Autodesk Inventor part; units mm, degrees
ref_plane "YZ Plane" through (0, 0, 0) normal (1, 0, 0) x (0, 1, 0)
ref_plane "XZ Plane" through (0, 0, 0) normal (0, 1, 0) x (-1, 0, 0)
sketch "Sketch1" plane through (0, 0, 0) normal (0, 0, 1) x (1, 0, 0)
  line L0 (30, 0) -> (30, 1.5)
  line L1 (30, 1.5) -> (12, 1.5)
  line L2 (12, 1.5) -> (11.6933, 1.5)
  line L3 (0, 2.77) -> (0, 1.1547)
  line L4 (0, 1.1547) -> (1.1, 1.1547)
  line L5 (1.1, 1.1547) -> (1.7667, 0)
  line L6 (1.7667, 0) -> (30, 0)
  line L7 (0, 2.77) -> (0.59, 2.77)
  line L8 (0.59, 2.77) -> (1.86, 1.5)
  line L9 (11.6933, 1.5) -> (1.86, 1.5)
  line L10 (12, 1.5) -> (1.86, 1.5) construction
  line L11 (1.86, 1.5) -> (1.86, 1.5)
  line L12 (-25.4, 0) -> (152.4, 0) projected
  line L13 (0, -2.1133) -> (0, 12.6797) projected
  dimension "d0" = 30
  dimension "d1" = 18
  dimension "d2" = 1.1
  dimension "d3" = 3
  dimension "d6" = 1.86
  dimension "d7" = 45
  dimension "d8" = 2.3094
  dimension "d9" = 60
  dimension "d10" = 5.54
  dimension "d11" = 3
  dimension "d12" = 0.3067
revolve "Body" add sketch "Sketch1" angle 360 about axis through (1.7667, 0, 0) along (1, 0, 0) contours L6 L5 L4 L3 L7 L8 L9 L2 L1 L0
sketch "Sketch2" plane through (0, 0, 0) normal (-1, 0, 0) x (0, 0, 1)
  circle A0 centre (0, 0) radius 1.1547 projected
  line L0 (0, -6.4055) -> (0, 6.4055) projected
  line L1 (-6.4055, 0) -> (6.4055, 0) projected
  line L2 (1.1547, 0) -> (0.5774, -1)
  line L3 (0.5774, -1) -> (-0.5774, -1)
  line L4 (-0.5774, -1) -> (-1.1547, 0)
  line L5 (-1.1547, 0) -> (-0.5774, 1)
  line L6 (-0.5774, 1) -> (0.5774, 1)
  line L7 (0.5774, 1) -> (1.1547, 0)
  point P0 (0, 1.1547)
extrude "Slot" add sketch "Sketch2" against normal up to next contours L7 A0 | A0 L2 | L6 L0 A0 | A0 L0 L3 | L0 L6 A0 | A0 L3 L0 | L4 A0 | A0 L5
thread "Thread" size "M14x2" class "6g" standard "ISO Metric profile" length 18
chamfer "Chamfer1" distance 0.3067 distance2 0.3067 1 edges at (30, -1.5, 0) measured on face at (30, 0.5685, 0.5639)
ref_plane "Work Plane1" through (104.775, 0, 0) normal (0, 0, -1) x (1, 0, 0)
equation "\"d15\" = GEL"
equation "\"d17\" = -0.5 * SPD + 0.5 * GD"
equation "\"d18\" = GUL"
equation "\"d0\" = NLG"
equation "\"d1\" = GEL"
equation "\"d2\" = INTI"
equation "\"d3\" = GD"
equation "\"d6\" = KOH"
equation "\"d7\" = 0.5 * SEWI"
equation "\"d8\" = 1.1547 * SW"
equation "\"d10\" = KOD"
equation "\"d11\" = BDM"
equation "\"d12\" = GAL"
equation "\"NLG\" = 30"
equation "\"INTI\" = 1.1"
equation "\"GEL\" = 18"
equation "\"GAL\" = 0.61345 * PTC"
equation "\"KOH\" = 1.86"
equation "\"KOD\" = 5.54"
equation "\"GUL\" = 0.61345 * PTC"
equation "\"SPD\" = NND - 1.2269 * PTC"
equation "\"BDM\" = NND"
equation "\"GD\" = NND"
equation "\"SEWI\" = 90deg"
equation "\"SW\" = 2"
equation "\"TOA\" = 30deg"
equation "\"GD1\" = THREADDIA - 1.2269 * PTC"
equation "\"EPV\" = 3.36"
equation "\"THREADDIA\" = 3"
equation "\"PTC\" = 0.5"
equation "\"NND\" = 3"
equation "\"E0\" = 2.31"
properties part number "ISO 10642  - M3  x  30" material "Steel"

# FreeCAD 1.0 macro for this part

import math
import FreeCAD as App
import Part
import Sketcher

V = App.Vector
Q = App.Units.Quantity


def edges_at(feature, points):
    """Names of the edges that pass closest to the given points."""
    edges = feature.Shape.Edges
    near = lambda p: min(range(len(edges)), key=lambda i: edges[i].distToShape(Part.Vertex(*p))[0])
    return sorted({f"Edge{near(p) + 1}" for p in points})

doc = App.newDocument("Part")
body = doc.addObject("PartDesign::Body", "Body")

# Sketch on XY plane
sketch1 = body.newObject("Sketcher::SketchObject", "Sketch")
sketch1.AttachmentSupport = (doc.getObject("XY_Plane"), [""])
sketch1.MapMode = "FlatFace"
sketch1.addGeometry([
    Part.LineSegment(V(1.7667, 0, 0), V(30, 0, 0)),  # 0
    Part.LineSegment(V(30, 0, 0), V(30, 1.5, 0)),  # 1
    Part.LineSegment(V(30, 1.5, 0), V(1.86, 1.5, 0)),  # 2
    Part.LineSegment(V(1.86, 1.5, 0), V(0.59, 2.77, 0)),  # 3
    Part.LineSegment(V(0.59, 2.77, 0), V(0, 2.77, 0)),  # 4
    Part.LineSegment(V(0, 2.77, 0), V(0, 1.1547, 0)),  # 5
    Part.LineSegment(V(0, 1.1547, 0), V(1.1, 1.1547, 0)),  # 6
    Part.LineSegment(V(1.1, 1.1547, 0), V(1.7667, 0, 0)),  # 7
], False)
sketch1.addConstraint([
    Sketcher.Constraint("Coincident", 0, 2, 1, 1),
    Sketcher.Constraint("Coincident", 1, 2, 2, 1),
    Sketcher.Constraint("Coincident", 2, 2, 3, 1),
    Sketcher.Constraint("Coincident", 3, 2, 4, 1),
    Sketcher.Constraint("Coincident", 4, 2, 5, 1),
    Sketcher.Constraint("Coincident", 5, 2, 6, 1),
    Sketcher.Constraint("Coincident", 6, 2, 7, 1),
    Sketcher.Constraint("Coincident", 7, 2, 0, 1),
    Sketcher.Constraint("Horizontal", 0),
    Sketcher.Constraint("Vertical", 1),
    Sketcher.Constraint("Horizontal", 2),
    Sketcher.Constraint("Horizontal", 4),
    Sketcher.Constraint("Vertical", 5),
    Sketcher.Constraint("Horizontal", 6),
    Sketcher.Constraint("PointOnObject", 0, 2, -1),
    Sketcher.Constraint("PointOnObject", 4, 2, -2),
    Sketcher.Constraint("DistanceX", 6, 1, 6, 2, 1.1),
    Sketcher.Constraint("DistanceX", -1, 1, 0, 2, 30.0),
    Sketcher.Constraint("DistanceX", -1, 1, 2, 2, 1.86),
    Sketcher.Constraint("Angle", 3, Q("135 deg")),
    Sketcher.Constraint("DistanceY", 1, 1, 1, 2, 1.5),
    Sketcher.Constraint("DistanceX", 4, 2, 4, 1, 0.59),
    Sketcher.Constraint("DistanceX", 0, 1, 0, 2, 28.2333),
    Sketcher.Constraint("DistanceY", 5, 2, 5, 1, 1.6153),
])
revolution = body.newObject("PartDesign::Revolution", "Revolution")
revolution.Profile = sketch1
revolution.ReferenceAxis = (sketch1, ["H_Axis"])
revolution.Angle = 360

# Sketch on YZ plane
sketch2 = body.newObject("Sketcher::SketchObject", "Sketch001")
sketch2.AttachmentSupport = (doc.getObject("YZ_Plane"), [""])
sketch2.MapMode = "FlatFace"
sketch2.addGeometry([
    Part.LineSegment(V(1, 0.5774, 0), V(0, 1.1547, 0)),  # 0
    Part.ArcOfCircle(Part.Circle(V(0, 0, 0), V(0, 0, 1), 1.1547), math.radians(30.002137), math.radians(90)),  # 1
    Part.ArcOfCircle(Part.Circle(V(0, 0, 0), V(0, 0, 1), 1.1547), math.radians(90), math.radians(149.997863)),  # 2
    Part.LineSegment(V(0, 1.1547, 0), V(-1, 0.5774, 0)),  # 3
    Part.ArcOfCircle(Part.Circle(V(0, 0, 0), V(0, 0, 1), 1.1547), math.radians(-30.002137), math.radians(30.002137)),  # 4
    Part.LineSegment(V(1, 0.5774, 0), V(1, -0.5774, 0)),  # 5
    Part.LineSegment(V(-1, 0.5774, 0), V(-1, -0.5774, 0)),  # 6
    Part.ArcOfCircle(Part.Circle(V(0, 0, 0), V(0, 0, 1), 1.1547), math.radians(149.997863), math.radians(210.002137)),  # 7
    Part.LineSegment(V(-1, -0.5774, 0), V(0, -1.1547, 0)),  # 8
    Part.ArcOfCircle(Part.Circle(V(0, 0, 0), V(0, 0, 1), 1.1547), math.radians(-149.997863), math.radians(-90)),  # 9
    Part.ArcOfCircle(Part.Circle(V(0, 0, 0), V(0, 0, 1), 1.1547), math.radians(-90), math.radians(-30.002137)),  # 10
    Part.LineSegment(V(0, -1.1547, 0), V(1, -0.5774, 0)),  # 11
], False)
sketch2.addConstraint([
    Sketcher.Constraint("Coincident", 0, 1, 1, 1),
    Sketcher.Constraint("Coincident", 1, 2, 0, 2),
    Sketcher.Constraint("Coincident", 2, 1, 3, 1),
    Sketcher.Constraint("Coincident", 3, 2, 2, 2),
    Sketcher.Constraint("Coincident", 4, 1, 5, 2),
    Sketcher.Constraint("Coincident", 5, 1, 4, 2),
    Sketcher.Constraint("Coincident", 6, 1, 7, 1),
    Sketcher.Constraint("Coincident", 7, 2, 6, 2),
    Sketcher.Constraint("Coincident", 8, 1, 9, 1),
    Sketcher.Constraint("Coincident", 9, 2, 8, 2),
    Sketcher.Constraint("Coincident", 10, 1, 11, 1),
    Sketcher.Constraint("Coincident", 11, 2, 10, 2),
    Sketcher.Constraint("Vertical", 5),
    Sketcher.Constraint("Vertical", 6),
    Sketcher.Constraint("Coincident", 1, 3, -1, 1),
    Sketcher.Constraint("Coincident", 2, 3, -1, 1),
    Sketcher.Constraint("Coincident", 4, 3, -1, 1),
    Sketcher.Constraint("Coincident", 7, 3, -1, 1),
    Sketcher.Constraint("Coincident", 9, 3, -1, 1),
    Sketcher.Constraint("Coincident", 10, 3, -1, 1),
    Sketcher.Constraint("Coincident", 2, 1, 1, 2),
    Sketcher.Constraint("Coincident", 5, 1, 0, 1),
    Sketcher.Constraint("Coincident", 6, 1, 3, 2),
    Sketcher.Constraint("Coincident", 8, 1, 7, 2),
    Sketcher.Constraint("Coincident", 10, 1, 9, 2),
    Sketcher.Constraint("PointOnObject", 1, 2, -2),
    Sketcher.Constraint("PointOnObject", 9, 2, -2),
    Sketcher.Constraint("Parallel", 0, 8),
    Sketcher.Constraint("Parallel", 3, 11),
    Sketcher.Constraint("DistanceX", -1, 1, 0, 1, 1.0),
    Sketcher.Constraint("Radius", 1, 1.1547),
])
pad1 = body.newObject("PartDesign::Pad", "Pad")
pad1.Profile = sketch2
pad1.Length = 1.1893
doc.recompute()

chamfer = body.newObject("PartDesign::Chamfer", "Chamfer")
chamfer.Base = (pad1, edges_at(pad1, [(30, -1.5, 0)]))
chamfer.ChamferType = "Two distances"
chamfer.Size = 0.3067
chamfer.Size2 = 0.3067

doc.recompute()
